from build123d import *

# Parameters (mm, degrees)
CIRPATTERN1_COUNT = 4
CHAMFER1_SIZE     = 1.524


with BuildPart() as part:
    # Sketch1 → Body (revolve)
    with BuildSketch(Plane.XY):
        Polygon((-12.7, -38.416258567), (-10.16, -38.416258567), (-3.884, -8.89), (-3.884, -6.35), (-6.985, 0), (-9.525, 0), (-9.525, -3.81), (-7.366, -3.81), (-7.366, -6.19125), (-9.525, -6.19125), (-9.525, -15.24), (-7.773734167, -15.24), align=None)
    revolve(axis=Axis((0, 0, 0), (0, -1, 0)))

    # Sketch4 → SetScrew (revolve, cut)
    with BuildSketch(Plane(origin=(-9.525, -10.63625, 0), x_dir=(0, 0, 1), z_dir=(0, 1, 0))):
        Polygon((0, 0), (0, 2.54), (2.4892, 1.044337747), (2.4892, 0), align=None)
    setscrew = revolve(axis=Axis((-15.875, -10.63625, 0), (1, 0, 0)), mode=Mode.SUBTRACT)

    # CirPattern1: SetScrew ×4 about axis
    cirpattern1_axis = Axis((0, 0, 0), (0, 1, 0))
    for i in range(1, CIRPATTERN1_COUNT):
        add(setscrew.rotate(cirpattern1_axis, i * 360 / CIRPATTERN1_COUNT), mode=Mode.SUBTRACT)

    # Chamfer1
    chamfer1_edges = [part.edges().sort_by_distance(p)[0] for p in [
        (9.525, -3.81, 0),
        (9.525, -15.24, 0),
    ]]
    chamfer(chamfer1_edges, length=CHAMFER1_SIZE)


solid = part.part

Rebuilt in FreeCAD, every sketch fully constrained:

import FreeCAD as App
import Part
import Sketcher
from FreeCAD import Vector
Q = App.Units.Quantity


def edges_at(feature, points):
    """Names of the edges that pass closest to the given points."""
    edges = feature.Shape.Edges
    near = lambda p: min(range(len(edges)), key=lambda i: edges[i].distToShape(Part.Vertex(*p))[0])
    return sorted({f"Edge{near(p) + 1}" for p in points})

doc = App.newDocument("Part")
body = doc.addObject("PartDesign::Body", "Body")

sketch1 = body.newObject("Sketcher::SketchObject", "Sketch")
sketch1.AttachmentSupport = (doc.getObject("XY_Plane"), [""])
sketch1.MapMode = "FlatFace"
sketch1.addGeometry(Part.LineSegment(Vector(-12.7, -38.416259, 0), Vector(-10.16, -38.416259, 0)), False)
sketch1.addGeometry(Part.LineSegment(Vector(-10.16, -38.416259, 0), Vector(-3.884, -8.89, 0)), False)
sketch1.addGeometry(Part.LineSegment(Vector(-3.884, -8.89, 0), Vector(-3.884, -6.35, 0)), False)
sketch1.addGeometry(Part.LineSegment(Vector(-3.884, -6.35, 0), Vector(-6.985, 0, 0)), False)
sketch1.addGeometry(Part.LineSegment(Vector(-6.985, 0, 0), Vector(-9.525, 0, 0)), False)
sketch1.addGeometry(Part.LineSegment(Vector(-9.525, 0, 0), Vector(-9.525, -3.81, 0)), False)
sketch1.addGeometry(Part.LineSegment(Vector(-9.525, -3.81, 0), Vector(-7.366, -3.81, 0)), False)
sketch1.addGeometry(Part.LineSegment(Vector(-7.366, -3.81, 0), Vector(-7.366, -6.19125, 0)), False)
sketch1.addGeometry(Part.LineSegment(Vector(-7.366, -6.19125, 0), Vector(-9.525, -6.19125, 0)), False)
sketch1.addGeometry(Part.LineSegment(Vector(-9.525, -6.19125, 0), Vector(-9.525, -15.24, 0)), False)
sketch1.addGeometry(Part.LineSegment(Vector(-9.525, -15.24, 0), Vector(-7.773734, -15.24, 0)), False)
sketch1.addGeometry(Part.LineSegment(Vector(-7.773734, -15.24, 0), Vector(-12.7, -38.416259, 0)), False)
sketch1.addConstraint(Sketcher.Constraint("Coincident", 0, 2, 1, 1))
sketch1.addConstraint(Sketcher.Constraint("Coincident", 1, 2, 2, 1))
sketch1.addConstraint(Sketcher.Constraint("Coincident", 2, 2, 3, 1))
sketch1.addConstraint(Sketcher.Constraint("Coincident", 3, 2, 4, 1))
sketch1.addConstraint(Sketcher.Constraint("Coincident", 4, 2, 5, 1))
sketch1.addConstraint(Sketcher.Constraint("Coincident", 5, 2, 6, 1))
sketch1.addConstraint(Sketcher.Constraint("Coincident", 6, 2, 7, 1))
sketch1.addConstraint(Sketcher.Constraint("Coincident", 7, 2, 8, 1))
sketch1.addConstraint(Sketcher.Constraint("Coincident", 8, 2, 9, 1))
sketch1.addConstraint(Sketcher.Constraint("Coincident", 9, 2, 10, 1))
sketch1.addConstraint(Sketcher.Constraint("Coincident", 10, 2, 11, 1))
sketch1.addConstraint(Sketcher.Constraint("Coincident", 11, 2, 0, 1))
sketch1.addConstraint(Sketcher.Constraint("Horizontal", 0))
sketch1.addConstraint(Sketcher.Constraint("Vertical", 2))
sketch1.addConstraint(Sketcher.Constraint("Horizontal", 4))
sketch1.addConstraint(Sketcher.Constraint("Vertical", 5))
sketch1.addConstraint(Sketcher.Constraint("Horizontal", 6))
sketch1.addConstraint(Sketcher.Constraint("Vertical", 7))
sketch1.addConstraint(Sketcher.Constraint("Horizontal", 8))
sketch1.addConstraint(Sketcher.Constraint("Vertical", 9))
sketch1.addConstraint(Sketcher.Constraint("Horizontal", 10))
sketch1.addConstraint(Sketcher.Constraint("PointOnObject", 3, 2, -1))
sketch1.addConstraint(Sketcher.Constraint("Parallel", 1, 11))
sketch1.addConstraint(Sketcher.Constraint("Vertical", 5, 2, 8, 2))
sketch1.addConstraint(Sketcher.Constraint("Equal", 0, 4))
sketch1.addConstraint(Sketcher.Constraint("Equal", 4, 2))
sketch1.addConstraint(Sketcher.Constraint("DistanceX", 0, 1, 0, 2, Q("0.1 in")))
sketch1.addConstraint(Sketcher.Constraint("Angle", 1, Q("78 deg")))
sketch1.addConstraint(Sketcher.Constraint("DistanceY", 5, 2, 5, 1, Q("0.15 in")))
sketch1.addConstraint(Sketcher.Constraint("DistanceX", 0, 2, -1, 1, Q("0.4 in")))
sketch1.addConstraint(Sketcher.Constraint("DistanceY", 9, 2, -1, 1, Q("0.6 in")))
sketch1.addConstraint(Sketcher.Constraint("DistanceY", 2, 2, 5, 2, Q("0.1 in")))
sketch1.addConstraint(Sketcher.Constraint("DistanceX", 6, 1, 6, 2, Q("0.085 in")))
sketch1.addConstraint(Sketcher.Constraint("DistanceY", 7, 2, 7, 1, Q("0.09375 in")))
sketch1.addConstraint(Sketcher.Constraint("DistanceX", 6, 2, -1, 1, Q("0.29 in")))
sketch1.addConstraint(Sketcher.Constraint("DistanceX", 1, 2, -1, 1, Q("3.884 mm")))
revolution = body.newObject("PartDesign::Revolution", "Revolution")
revolution.Profile = sketch1
revolution.ReferenceAxis = (sketch1, ["V_Axis"])
revolution.Angle = 360

sketch2 = body.newObject("Sketcher::SketchObject", "Sketch001")
sketch2.AttachmentSupport = (doc.getObject("XZ_Plane"), [""])
sketch2.MapMode = "FlatFace"
sketch2.AttachmentOffset = App.Placement(Vector(0, 0, 10.63625), App.Rotation())
sketch2.addGeometry(Part.LineSegment(Vector(-6.985, 0, 0), Vector(-9.525, 0, 0)), False)
sketch2.addGeometry(Part.LineSegment(Vector(-9.525, 0, 0), Vector(-9.525, 2.4892, 0)), False)
sketch2.addGeometry(Part.LineSegment(Vector(-9.525, 2.4892, 0), Vector(-8.480662, 2.4892, 0)), False)
sketch2.addGeometry(Part.LineSegment(Vector(-8.480662, 2.4892, 0), Vector(-6.985, 0, 0)), False)
sketch2.addConstraint(Sketcher.Constraint("Coincident", 0, 2, 1, 1))
sketch2.addConstraint(Sketcher.Constraint("Coincident", 1, 2, 2, 1))
sketch2.addConstraint(Sketcher.Constraint("Coincident", 2, 2, 3, 1))
sketch2.addConstraint(Sketcher.Constraint("Coincident", 3, 2, 0, 1))
sketch2.addConstraint(Sketcher.Constraint("Horizontal", 0))
sketch2.addConstraint(Sketcher.Constraint("Vertical", 1))
sketch2.addConstraint(Sketcher.Constraint("Horizontal", 2))
sketch2.addConstraint(Sketcher.Constraint("PointOnObject", 0, 2, -1))
sketch2.addConstraint(Sketcher.Constraint("DistanceX", 0, 2, 0, 1, Q("0.1 in")))
sketch2.addConstraint(Sketcher.Constraint("Angle", 3, Q("-59 deg")))
sketch2.addConstraint(Sketcher.Constraint("DistanceY", 1, 1, 1, 2, Q("0.098 in")))
sketch2.addConstraint(Sketcher.Constraint("DistanceX", 0, 2, -1, 1, Q("0.375 in")))
groove = body.newObject("PartDesign::Groove", "Groove")
groove.Profile = sketch2
groove.ReferenceAxis = (sketch2, ["H_Axis"])
groove.Angle = 360
doc.recompute()

polarpattern = body.newObject("PartDesign::PolarPattern", "PolarPattern")
polarpattern.Originals = [groove]
polarpattern.Axis = (doc.getObject("Y_Axis"), [""])
polarpattern.Angle = 360
polarpattern.Occurrences = 4
body.Tip = polarpattern
doc.recompute()

chamfer = body.newObject("PartDesign::Chamfer", "Chamfer")
chamfer.Base = (polarpattern, edges_at(polarpattern, [(9.525, -3.81, 0), (9.525, -15.24, 0)]))
chamfer.Size = Q("0.06 in")

doc.recompute()
